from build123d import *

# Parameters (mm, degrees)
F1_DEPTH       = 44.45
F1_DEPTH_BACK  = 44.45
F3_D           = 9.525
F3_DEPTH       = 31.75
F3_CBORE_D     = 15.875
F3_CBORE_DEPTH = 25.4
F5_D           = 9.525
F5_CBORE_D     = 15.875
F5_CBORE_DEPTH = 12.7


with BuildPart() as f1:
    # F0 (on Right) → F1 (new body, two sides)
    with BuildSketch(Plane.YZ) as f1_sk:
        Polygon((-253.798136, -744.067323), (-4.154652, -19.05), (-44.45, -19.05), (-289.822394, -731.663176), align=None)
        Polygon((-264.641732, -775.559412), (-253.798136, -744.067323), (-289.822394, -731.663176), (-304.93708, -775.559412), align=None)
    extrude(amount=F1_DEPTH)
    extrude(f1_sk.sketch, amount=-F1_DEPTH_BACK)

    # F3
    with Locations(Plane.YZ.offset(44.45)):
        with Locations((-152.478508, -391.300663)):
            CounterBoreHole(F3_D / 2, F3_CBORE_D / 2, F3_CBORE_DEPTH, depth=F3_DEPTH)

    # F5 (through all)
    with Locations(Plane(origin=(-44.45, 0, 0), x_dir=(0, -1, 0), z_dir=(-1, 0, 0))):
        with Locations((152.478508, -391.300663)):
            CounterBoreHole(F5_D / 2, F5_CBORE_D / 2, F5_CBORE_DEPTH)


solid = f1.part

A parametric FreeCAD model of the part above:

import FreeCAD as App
import Part
import Sketcher

V = App.Vector
Q = App.Units.Quantity

doc = App.newDocument("Part")
params = doc.addObject("Spreadsheet::Sheet", "Params")
for row, (alias, value) in enumerate([
    ("pad1_length", "1.75 in"),
    ("pad1_length2", "1.75 in"),
    ("sketch2_diameter", "0.375 in"),
    ("hole_diameter", "0.375 in"),
    ("hole_depth", "1.25 in"),
    ("hole_cbore_diameter", "0.625 in"),
    ("hole_cbore_depth", "1 in"),
    ("sketch3_diameter", "0.375 in"),
    ("hole2_diameter", "0.375 in"),
    ("hole2_cbore_diameter", "0.625 in"),
    ("hole2_cbore_depth", "0.5 in"),
], start=1):
    params.set(f"A{row}", alias)
    params.set(f"B{row}", "=" + value)
    params.setAlias(f"B{row}", alias)

body = doc.addObject("PartDesign::Body", "Body")

# Sketch on YZ plane
sketch1 = body.newObject("Sketcher::SketchObject", "Sketch")
sketch1.AttachmentSupport = (doc.getObject("YZ_Plane"), [""])
sketch1.MapMode = "FlatFace"
sketch1.addGeometry(Part.LineSegment(V(-254, -744, 0), V(-4, -19, 0)), False)
sketch1.addGeometry(Part.LineSegment(V(-4, -19, 0), V(-44, -19, 0)), False)
sketch1.addGeometry(Part.LineSegment(V(-44, -19, 0), V(-290, -732, 0)), False)
sketch1.addGeometry(Part.LineSegment(V(-290, -732, 0), V(-305, -776, 0)), False)
sketch1.addGeometry(Part.LineSegment(V(-305, -776, 0), V(-265, -776, 0)), False)
sketch1.addGeometry(Part.LineSegment(V(-265, -776, 0), V(-254, -744, 0)), False)
sketch1.addConstraint(Sketcher.Constraint("Coincident", 0, 2, 1, 1))
sketch1.addConstraint(Sketcher.Constraint("Coincident", 1, 2, 2, 1))
sketch1.addConstraint(Sketcher.Constraint("Coincident", 2, 2, 3, 1))
sketch1.addConstraint(Sketcher.Constraint("Coincident", 3, 2, 4, 1))
sketch1.addConstraint(Sketcher.Constraint("Coincident", 4, 2, 5, 1))
sketch1.addConstraint(Sketcher.Constraint("Coincident", 5, 2, 0, 1))
sketch1.addConstraint(Sketcher.Constraint("Horizontal", 1))
sketch1.addConstraint(Sketcher.Constraint("Horizontal", 4))
sketch1.addConstraint(Sketcher.Constraint("Parallel", 0, 2))
sketch1.addConstraint(Sketcher.Constraint("Parallel", 2, 3))
sketch1.addConstraint(Sketcher.Constraint("Parallel", 3, 5))
sketch1.addConstraint(Sketcher.Constraint("Angle", 0, Q("71 deg")))
sketch1.addConstraint(Sketcher.Constraint("DistanceY", 0, 2, -1, 1, Q("0.75 in")))
sketch1.addConstraint(Sketcher.Constraint("DistanceX", 1, 2, -1, 1, Q("1.75 in")))
sketch1.addConstraint(Sketcher.Constraint("DistanceX", 1, 2, 1, 1, Q("40.295348 mm")))
sketch1.addConstraint(Sketcher.Constraint("DistanceX", 3, 2, -1, 1, Q("304.93708 mm")))
sketch1.addConstraint(Sketcher.Constraint("DistanceX", 2, 2, 0, 2, Q("285.667742 mm")))
sketch1.addConstraint(Sketcher.Constraint("DistanceY", 4, 2, 5, 2, Q("31.492089 mm")))
pad1 = body.newObject("PartDesign::Pad", "Pad")
pad1.Profile = sketch1
pad1.Type = "TwoLengths"
pad1.setExpression("Length", "Params.pad1_length")
pad1.setExpression("Length2", "Params.pad1_length2")

# Sketch on YZ plane
sketch2 = body.newObject("Sketcher::SketchObject", "Sketch001")
sketch2.AttachmentSupport = (doc.getObject("YZ_Plane"), [""])
sketch2.MapMode = "FlatFace"
sketch2.AttachmentOffset = App.Placement(V(0, 0, 1.75 * 25.4), App.Rotation())
sketch2.addGeometry(Part.Circle(V(-152.5, -391.3, 0), V(0, 0, 1), 4.8), False)
sketch2.addConstraint(Sketcher.Constraint("Diameter", 0, Q("0.375 in")))
sketch2.addConstraint(Sketcher.Constraint("DistanceX", 0, 3, -1, 1, Q("152.478508 mm")))
sketch2.addConstraint(Sketcher.Constraint("DistanceY", 0, 3, -1, 1, Q("391.300663 mm")))
sketch2.setExpression("Constraints[0]", "Params.sketch2_diameter")
doc.recompute()
hole = body.newObject("PartDesign::Hole", "Hole")
hole.Profile = sketch2
hole.ThreadType = "None"
hole.setExpression("Diameter", "Params.hole_diameter")
hole.DepthType = "Dimension"
hole.setExpression("Depth", "Params.hole_depth")
hole.DrillPoint = "Flat"
hole.HoleCutType = "Counterbore"
hole.setExpression("HoleCutDiameter", "Params.hole_cbore_diameter")
hole.setExpression("HoleCutDepth", "Params.hole_cbore_depth")

# Sketch on YZ plane
sketch3 = body.newObject("Sketcher::SketchObject", "Sketch002")
sketch3.AttachmentSupport = (doc.getObject("YZ_Plane"), [""])
sketch3.MapMode = "FlatFace"
sketch3.AttachmentOffset = App.Placement(V(0, 0, -1.75 * 25.4), App.Rotation())
sketch3.addGeometry(Part.Circle(V(-152.5, -391.3, 0), V(0, 0, 1), 4.8), False)
sketch3.addConstraint(Sketcher.Constraint("Diameter", 0, Q("0.375 in")))
sketch3.addConstraint(Sketcher.Constraint("DistanceX", 0, 3, -1, 1, Q("152.478508 mm")))
sketch3.addConstraint(Sketcher.Constraint("DistanceY", 0, 3, -1, 1, Q("391.300663 mm")))
sketch3.setExpression("Constraints[0]", "Params.sketch3_diameter")
doc.recompute()
hole2 = body.newObject("PartDesign::Hole", "Hole001")
hole2.Profile = sketch3
hole2.ThreadType = "None"
hole2.setExpression("Diameter", "Params.hole2_diameter")
hole2.DepthType = "ThroughAll"
hole2.HoleCutType = "Counterbore"
hole2.setExpression("HoleCutDiameter", "Params.hole2_cbore_diameter")
hole2.setExpression("HoleCutDepth", "Params.hole2_cbore_depth")
hole2.Reversed = True

doc.recompute()
